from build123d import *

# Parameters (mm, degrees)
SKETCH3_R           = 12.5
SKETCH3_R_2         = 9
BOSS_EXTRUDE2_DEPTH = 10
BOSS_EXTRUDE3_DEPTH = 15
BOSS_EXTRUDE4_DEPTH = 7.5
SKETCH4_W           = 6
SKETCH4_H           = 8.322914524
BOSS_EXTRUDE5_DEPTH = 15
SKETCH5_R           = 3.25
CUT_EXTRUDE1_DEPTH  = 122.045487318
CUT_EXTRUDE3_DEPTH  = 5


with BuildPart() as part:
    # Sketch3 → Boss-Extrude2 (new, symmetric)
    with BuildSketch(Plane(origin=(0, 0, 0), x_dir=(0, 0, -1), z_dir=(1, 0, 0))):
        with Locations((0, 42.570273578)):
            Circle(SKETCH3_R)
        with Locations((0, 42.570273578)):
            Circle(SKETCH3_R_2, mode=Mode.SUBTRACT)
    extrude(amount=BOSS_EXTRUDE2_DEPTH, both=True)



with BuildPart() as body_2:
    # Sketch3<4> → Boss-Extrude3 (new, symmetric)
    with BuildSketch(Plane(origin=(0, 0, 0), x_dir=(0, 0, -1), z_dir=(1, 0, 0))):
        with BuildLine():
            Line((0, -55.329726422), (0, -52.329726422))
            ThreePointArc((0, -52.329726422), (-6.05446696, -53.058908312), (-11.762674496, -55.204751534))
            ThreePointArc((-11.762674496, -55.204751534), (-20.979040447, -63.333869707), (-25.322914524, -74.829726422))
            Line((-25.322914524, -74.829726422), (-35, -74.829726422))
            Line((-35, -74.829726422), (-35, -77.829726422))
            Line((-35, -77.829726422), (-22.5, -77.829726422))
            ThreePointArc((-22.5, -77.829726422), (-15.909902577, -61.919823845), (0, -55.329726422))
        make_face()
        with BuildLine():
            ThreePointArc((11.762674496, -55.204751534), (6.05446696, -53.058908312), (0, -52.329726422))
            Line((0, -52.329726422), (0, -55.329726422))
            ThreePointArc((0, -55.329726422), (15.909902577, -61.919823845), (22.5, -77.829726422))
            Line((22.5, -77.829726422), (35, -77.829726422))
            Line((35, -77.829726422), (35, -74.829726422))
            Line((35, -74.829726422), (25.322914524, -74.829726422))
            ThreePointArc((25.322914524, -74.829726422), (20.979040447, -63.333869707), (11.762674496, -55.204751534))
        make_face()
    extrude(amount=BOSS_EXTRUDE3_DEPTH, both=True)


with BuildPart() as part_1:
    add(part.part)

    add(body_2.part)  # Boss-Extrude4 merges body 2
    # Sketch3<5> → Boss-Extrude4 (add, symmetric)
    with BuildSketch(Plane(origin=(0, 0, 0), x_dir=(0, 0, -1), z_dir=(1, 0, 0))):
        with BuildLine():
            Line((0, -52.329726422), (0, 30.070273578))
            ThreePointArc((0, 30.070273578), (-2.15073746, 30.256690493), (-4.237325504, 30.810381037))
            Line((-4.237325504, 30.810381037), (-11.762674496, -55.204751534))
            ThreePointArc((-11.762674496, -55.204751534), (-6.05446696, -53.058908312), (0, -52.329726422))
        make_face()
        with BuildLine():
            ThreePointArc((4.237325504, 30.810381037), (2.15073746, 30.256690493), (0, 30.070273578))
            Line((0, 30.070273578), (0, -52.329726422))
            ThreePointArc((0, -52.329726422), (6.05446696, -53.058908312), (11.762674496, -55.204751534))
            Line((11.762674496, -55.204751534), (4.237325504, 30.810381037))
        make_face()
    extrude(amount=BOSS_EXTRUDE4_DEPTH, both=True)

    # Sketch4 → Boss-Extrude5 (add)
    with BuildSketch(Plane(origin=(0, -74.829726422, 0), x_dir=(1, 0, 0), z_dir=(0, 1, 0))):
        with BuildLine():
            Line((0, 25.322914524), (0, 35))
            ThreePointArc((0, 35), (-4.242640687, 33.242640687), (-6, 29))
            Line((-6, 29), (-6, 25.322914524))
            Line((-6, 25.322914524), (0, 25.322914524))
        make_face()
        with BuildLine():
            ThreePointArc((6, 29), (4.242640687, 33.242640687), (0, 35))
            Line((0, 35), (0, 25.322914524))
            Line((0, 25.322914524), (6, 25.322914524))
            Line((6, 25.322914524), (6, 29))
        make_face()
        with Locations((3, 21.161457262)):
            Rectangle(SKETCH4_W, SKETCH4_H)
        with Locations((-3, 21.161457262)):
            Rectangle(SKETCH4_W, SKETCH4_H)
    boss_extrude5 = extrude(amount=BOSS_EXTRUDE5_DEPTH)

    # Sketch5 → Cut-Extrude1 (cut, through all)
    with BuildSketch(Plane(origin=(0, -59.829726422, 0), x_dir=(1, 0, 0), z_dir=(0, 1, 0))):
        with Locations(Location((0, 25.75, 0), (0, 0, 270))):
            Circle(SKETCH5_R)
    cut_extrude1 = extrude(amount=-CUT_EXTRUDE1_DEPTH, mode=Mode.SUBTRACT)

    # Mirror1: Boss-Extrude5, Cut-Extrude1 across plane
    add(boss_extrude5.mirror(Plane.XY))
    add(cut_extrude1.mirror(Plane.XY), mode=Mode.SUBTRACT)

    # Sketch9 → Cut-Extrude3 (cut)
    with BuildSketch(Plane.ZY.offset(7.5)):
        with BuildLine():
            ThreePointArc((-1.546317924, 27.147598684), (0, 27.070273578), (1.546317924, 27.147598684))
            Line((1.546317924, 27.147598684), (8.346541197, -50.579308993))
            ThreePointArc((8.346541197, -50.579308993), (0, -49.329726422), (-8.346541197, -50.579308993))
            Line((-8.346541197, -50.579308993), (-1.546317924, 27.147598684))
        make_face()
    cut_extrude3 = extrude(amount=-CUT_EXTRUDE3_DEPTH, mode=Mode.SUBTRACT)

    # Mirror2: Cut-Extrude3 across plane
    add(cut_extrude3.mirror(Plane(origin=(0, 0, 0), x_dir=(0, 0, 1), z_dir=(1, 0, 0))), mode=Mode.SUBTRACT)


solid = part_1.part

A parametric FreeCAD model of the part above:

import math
import FreeCAD as App
import Part
import Sketcher
from FreeCAD import Vector
Q = App.Units.Quantity

doc = App.newDocument("Part")
body = doc.addObject("PartDesign::Body", "Body")

sketch1 = body.newObject("Sketcher::SketchObject", "Sketch")
sketch1.AttachmentSupport = (doc.getObject("YZ_Plane"), [""])
sketch1.MapMode = "FlatFace"
sketch1.addGeometry(Part.Circle(Vector(43, 0, 0), Vector(0, 0, 1), 12), False)
sketch1.addGeometry(Part.Circle(Vector(43, 0, 0), Vector(0, 0, 1), 9), False)
sketch1.addConstraint(Sketcher.Constraint("Coincident", 1, 3, 0, 3))
sketch1.addConstraint(Sketcher.Constraint("PointOnObject", 0, 3, -1))
sketch1.addConstraint(Sketcher.Constraint("Diameter", 0, Q("25 mm")))
sketch1.addConstraint(Sketcher.Constraint("Diameter", 1, Q("18 mm")))
sketch1.addConstraint(Sketcher.Constraint("DistanceX", -1, 1, 0, 3, Q("42.570274 mm")))
pad1 = body.newObject("PartDesign::Pad", "Pad")
pad1.Profile = sketch1
pad1.Length = 20
pad1.Midplane = True
body2 = doc.addObject("PartDesign::Body", "Body001")

sketch2 = body2.newObject("Sketcher::SketchObject", "Sketch001")
sketch2.AttachmentSupport = (doc.getObject("YZ_Plane001"), [""])
sketch2.MapMode = "FlatFace"
sketch2.addGeometry(Part.ArcOfCircle(Part.Circle(Vector(-77.8, 0, 0), Vector(0, 0, 1), 25.5), math.radians(0), math.radians(27)), False)
sketch2.addGeometry(Part.ArcOfCircle(Part.Circle(Vector(-77.8, 0, 0), Vector(0, 0, 1), 25.5), math.radians(27), math.radians(83)), False)
sketch2.addGeometry(Part.LineSegment(Vector(-74.8, 25.3, 0), Vector(-74.8, 35, 0)), False)
sketch2.addGeometry(Part.LineSegment(Vector(-74.8, 35, 0), Vector(-77.8, 35, 0)), False)
sketch2.addGeometry(Part.LineSegment(Vector(-77.8, 35, 0), Vector(-77.8, 22.5, 0)), False)
sketch2.addGeometry(Part.ArcOfCircle(Part.Circle(Vector(-77.8, 0, 0), Vector(0, 0, 1), 22.5), math.radians(0), math.radians(90)), False)
sketch2.addGeometry(Part.ArcOfCircle(Part.Circle(Vector(-77.8, 0, 0), Vector(0, 0, 1), 22.5), math.radians(-90), math.radians(0)), False)
sketch2.addGeometry(Part.LineSegment(Vector(-77.8, -22.5, 0), Vector(-77.8, -35, 0)), False)
sketch2.addGeometry(Part.LineSegment(Vector(-77.8, -35, 0), Vector(-74.8, -35, 0)), False)
sketch2.addGeometry(Part.LineSegment(Vector(-74.8, -35, 0), Vector(-74.8, -25.3, 0)), False)
sketch2.addGeometry(Part.ArcOfCircle(Part.Circle(Vector(-77.8, 0, 0), Vector(0, 0, 1), 25.5), math.radians(-83), math.radians(-27)), False)
sketch2.addGeometry(Part.ArcOfCircle(Part.Circle(Vector(-77.8, 0, 0), Vector(0, 0, 1), 25.5), math.radians(-27), math.radians(0)), False)
sketch2.addConstraint(Sketcher.Constraint("Tangent", 0, 2, 1, 1))
sketch2.addConstraint(Sketcher.Constraint("Coincident", 1, 2, 2, 1))
sketch2.addConstraint(Sketcher.Constraint("Coincident", 2, 2, 3, 1))
sketch2.addConstraint(Sketcher.Constraint("Coincident", 3, 2, 4, 1))
sketch2.addConstraint(Sketcher.Constraint("Coincident", 4, 2, 5, 2))
sketch2.addConstraint(Sketcher.Constraint("Tangent", 5, 1, 6, 2))
sketch2.addConstraint(Sketcher.Constraint("Coincident", 6, 1, 7, 1))
sketch2.addConstraint(Sketcher.Constraint("Coincident", 7, 2, 8, 1))
sketch2.addConstraint(Sketcher.Constraint("Coincident", 8, 2, 9, 1))
sketch2.addConstraint(Sketcher.Constraint("Coincident", 9, 2, 10, 1))
sketch2.addConstraint(Sketcher.Constraint("Tangent", 10, 2, 11, 1))
sketch2.addConstraint(Sketcher.Constraint("Tangent", 11, 2, 0, 1))
sketch2.addConstraint(Sketcher.Constraint("Vertical", 2))
sketch2.addConstraint(Sketcher.Constraint("Horizontal", 3))
sketch2.addConstraint(Sketcher.Constraint("Vertical", 4))
sketch2.addConstraint(Sketcher.Constraint("Vertical", 7))
sketch2.addConstraint(Sketcher.Constraint("Horizontal", 8))
sketch2.addConstraint(Sketcher.Constraint("Vertical", 9))
sketch2.addConstraint(Sketcher.Constraint("Coincident", 5, 3, 0, 3))
sketch2.addConstraint(Sketcher.Constraint("Coincident", 10, 3, 0, 3))
sketch2.addConstraint(Sketcher.Constraint("Equal", 0, 1))
sketch2.addConstraint(Sketcher.Constraint("Equal", 5, 6))
sketch2.addConstraint(Sketcher.Constraint("Symmetric", 4, 2, 6, 1, -1))
sketch2.addConstraint(Sketcher.Constraint("Symmetric", 2, 2, 8, 2, -1))
sketch2.addConstraint(Sketcher.Constraint("PointOnObject", 5, 1, -1))
sketch2.addConstraint(Sketcher.Constraint("PointOnObject", 11, 2, -1))
sketch2.addConstraint(Sketcher.Constraint("Vertical", 11, 3, 3, 2))
sketch2.addConstraint(Sketcher.Constraint("Vertical", 0, 2, 10, 2))
sketch2.addConstraint(Sketcher.Constraint("Radius", 0, Q("25.5 mm")))
sketch2.addConstraint(Sketcher.Constraint("Radius", 5, Q("22.5 mm")))
sketch2.addConstraint(Sketcher.Constraint("DistanceX", 3, 2, 3, 1, Q("3 mm")))
sketch2.addConstraint(Sketcher.Constraint("DistanceY", 4, 2, 4, 1, Q("12.5 mm")))
sketch2.addConstraint(Sketcher.Constraint("DistanceX", 0, 2, -1, 1, Q("55.204752 mm")))
sketch2.addConstraint(Sketcher.Constraint("DistanceY", 0, 2, 1, 2, Q("13.56024 mm")))
pad2 = body2.newObject("PartDesign::Pad", "Pad001")
pad2.Profile = sketch2
pad2.Length = 30
pad2.Midplane = True
body.AllowCompound = True
doc.recompute()

boolean = body.newObject("PartDesign::Boolean", "Boolean")
boolean.Type = "Fuse"
boolean.addObjects([body2])

sketch3 = body.newObject("Sketcher::SketchObject", "Sketch002")
sketch3.AttachmentSupport = (doc.getObject("YZ_Plane"), [""])
sketch3.MapMode = "FlatFace"
sketch3.addGeometry(Part.ArcOfCircle(Part.Circle(Vector(42.6, 0, 0), Vector(0, 0, 1), 12.5), math.radians(160.18), math.radians(180)), False)
sketch3.addGeometry(Part.LineSegment(Vector(30.8, 4.2, 0), Vector(-55.2, 11.8, 0)), False)
sketch3.addGeometry(Part.ArcOfCircle(Part.Circle(Vector(-77.8, 0, 0), Vector(0, 0, 1), 25.5), math.radians(0), math.radians(27)), False)
sketch3.addGeometry(Part.ArcOfCircle(Part.Circle(Vector(-77.8, 0, 0), Vector(0, 0, 1), 25.5), math.radians(-27), math.radians(0)), False)
sketch3.addGeometry(Part.LineSegment(Vector(-55.2, -11.8, 0), Vector(30.8, -4.2, 0)), False)
sketch3.addGeometry(Part.ArcOfCircle(Part.Circle(Vector(42.6, 0, 0), Vector(0, 0, 1), 12.5), math.radians(180), math.radians(199.82)), False)
sketch3.addConstraint(Sketcher.Constraint("Coincident", 0, 1, 1, 1))
sketch3.addConstraint(Sketcher.Constraint("Coincident", 1, 2, 2, 2))
sketch3.addConstraint(Sketcher.Constraint("Tangent", 2, 1, 3, 2))
sketch3.addConstraint(Sketcher.Constraint("Coincident", 3, 1, 4, 1))
sketch3.addConstraint(Sketcher.Constraint("Coincident", 4, 2, 5, 2))
sketch3.addConstraint(Sketcher.Constraint("Tangent", 5, 1, 0, 2))
sketch3.addConstraint(Sketcher.Constraint("Equal", 2, 3))
sketch3.addConstraint(Sketcher.Constraint("Equal", 0, 5))
sketch3.addConstraint(Sketcher.Constraint("Symmetric", 1, 2, 3, 1, -1))
sketch3.addConstraint(Sketcher.Constraint("Symmetric", 0, 1, 4, 2, -1))
sketch3.addConstraint(Sketcher.Constraint("PointOnObject", 2, 1, -1))
sketch3.addConstraint(Sketcher.Constraint("PointOnObject", 5, 1, -1))
sketch3.addConstraint(Sketcher.Constraint("Radius", 0, Q("12.5 mm")))
sketch3.addConstraint(Sketcher.Constraint("Radius", 2, Q("25.5 mm")))
sketch3.addConstraint(Sketcher.Constraint("Angle", 1, Q("175 deg")))
sketch3.addConstraint(Sketcher.Constraint("DistanceY", 3, 1, 0, 1, Q("16 mm")))
sketch3.addConstraint(Sketcher.Constraint("DistanceX", 2, 3, 0, 3, Q("120.4 mm")))
sketch3.addConstraint(Sketcher.Constraint("DistanceX", -1, 1, 0, 1, Q("30.810381 mm")))
pad3 = body.newObject("PartDesign::Pad", "Pad002")
pad3.Profile = sketch3
pad3.Length = 15
pad3.Midplane = True

sketch4 = body.newObject("Sketcher::SketchObject", "Sketch003")
sketch4.AttachmentSupport = (doc.getObject("XZ_Plane"), [""])
sketch4.MapMode = "FlatFace"
sketch4.AttachmentOffset = App.Placement(Vector(0, 0, 74.829726), App.Rotation())
sketch4.addGeometry(Part.ArcOfCircle(Part.Circle(Vector(0, -29, 0), Vector(0, 0, 1), 6), math.radians(180), math.radians(270)), False)
sketch4.addGeometry(Part.LineSegment(Vector(-6, -29, 0), Vector(-6, -17, 0)), False)
sketch4.addGeometry(Part.LineSegment(Vector(-6, -17, 0), Vector(6, -17, 0)), False)
sketch4.addGeometry(Part.LineSegment(Vector(6, -17, 0), Vector(6, -29, 0)), False)
sketch4.addGeometry(Part.ArcOfCircle(Part.Circle(Vector(0, -29, 0), Vector(0, 0, 1), 6), math.radians(-90), math.radians(0)), False)
sketch4.addConstraint(Sketcher.Constraint("Tangent", 0, 1, 1, 1))
sketch4.addConstraint(Sketcher.Constraint("Coincident", 1, 2, 2, 1))
sketch4.addConstraint(Sketcher.Constraint("Coincident", 2, 2, 3, 1))
sketch4.addConstraint(Sketcher.Constraint("Tangent", 3, 2, 4, 2))
sketch4.addConstraint(Sketcher.Constraint("Tangent", 4, 1, 0, 2))
sketch4.addConstraint(Sketcher.Constraint("Vertical", 1))
sketch4.addConstraint(Sketcher.Constraint("Horizontal", 2))
sketch4.addConstraint(Sketcher.Constraint("Vertical", 3))
sketch4.addConstraint(Sketcher.Constraint("Equal", 0, 4))
sketch4.addConstraint(Sketcher.Constraint("PointOnObject", 0, 3, -2))
sketch4.addConstraint(Sketcher.Constraint("PointOnObject", 4, 1, -2))
sketch4.addConstraint(Sketcher.Constraint("Equal", 2, 1))
sketch4.addConstraint(Sketcher.Constraint("Radius", 0, Q("6 mm")))
sketch4.addConstraint(Sketcher.Constraint("DistanceY", 0, 3, -1, 1, Q("29 mm")))
pad4 = body.newObject("PartDesign::Pad", "Pad003")
pad4.Profile = sketch4
pad4.Length = 15
pad4.Reversed = True

sketch5 = body.newObject("Sketcher::SketchObject", "Sketch004")
sketch5.AttachmentSupport = (doc.getObject("XZ_Plane"), [""])
sketch5.MapMode = "FlatFace"
sketch5.AttachmentOffset = App.Placement(Vector(0, 0, 59.829726), App.Rotation())
sketch5.addGeometry(Part.Circle(Vector(0, -25.8, 0), Vector(0, 0, 1), 3.2), False)
sketch5.addConstraint(Sketcher.Constraint("PointOnObject", 0, 3, -2))
sketch5.addConstraint(Sketcher.Constraint("Diameter", 0, Q("6.5 mm")))
sketch5.addConstraint(Sketcher.Constraint("DistanceY", 0, 3, -1, 1, Q("25.75 mm")))
pocket1 = body.newObject("PartDesign::Pocket", "Pocket")
pocket1.Profile = sketch5
pocket1.Type = "ThroughAll"
pocket1.Reversed = True
doc.recompute()

mirrored = body.newObject("PartDesign::Mirrored", "Mirrored")
mirrored.Originals = [pad4, pocket1]
mirrored.MirrorPlane = (doc.getObject("XY_Plane"), [""])
body.Tip = mirrored

sketch6 = body.newObject("Sketcher::SketchObject", "Sketch005")
sketch6.AttachmentSupport = (doc.getObject("YZ_Plane"), [""])
sketch6.MapMode = "FlatFace"
sketch6.AttachmentOffset = App.Placement(Vector(0, 0, -7.5), App.Rotation())
sketch6.addGeometry(Part.ArcOfCircle(Part.Circle(Vector(42.6, 0, 0), Vector(0, 0, 1), 15.5), math.radians(174.27), math.radians(185.73)), False)
sketch6.addGeometry(Part.LineSegment(Vector(27.1, -1.5, 0), Vector(-50.6, -8.3, 0)), False)
sketch6.addGeometry(Part.ArcOfCircle(Part.Circle(Vector(-77.8, 0, 0), Vector(0, 0, 1), 28.5), math.radians(-17), math.radians(17)), False)
sketch6.addGeometry(Part.LineSegment(Vector(-50.6, 8.3, 0), Vector(27.1, 1.5, 0)), False)
sketch6.addConstraint(Sketcher.Constraint("Coincident", 0, 2, 1, 1))
sketch6.addConstraint(Sketcher.Constraint("Coincident", 1, 2, 2, 1))
sketch6.addConstraint(Sketcher.Constraint("Coincident", 2, 2, 3, 1))
sketch6.addConstraint(Sketcher.Constraint("Coincident", 3, 2, 0, 1))
sketch6.addConstraint(Sketcher.Constraint("Symmetric", 1, 2, 2, 2, -1))
sketch6.addConstraint(Sketcher.Constraint("Symmetric", 0, 2, 3, 2, -1))
sketch6.addConstraint(Sketcher.Constraint("Radius", 0, Q("15.5 mm")))
sketch6.addConstraint(Sketcher.Constraint("Radius", 2, Q("28.5 mm")))
sketch6.addConstraint(Sketcher.Constraint("Angle", 1, Q("-175 deg")))
sketch6.addConstraint(Sketcher.Constraint("DistanceX", 2, 3, 0, 3, Q("120.4 mm")))
sketch6.addConstraint(Sketcher.Constraint("DistanceX", -1, 1, 0, 2, Q("27.147599 mm")))
sketch6.addConstraint(Sketcher.Constraint("Distance", 1, Q("78.023812 mm")))
pocket2 = body.newObject("PartDesign::Pocket", "Pocket001")
pocket2.Profile = sketch6
pocket2.Length = 5
pocket2.Reversed = True
doc.recompute()

mirrored2 = body.newObject("PartDesign::Mirrored", "Mirrored001")
mirrored2.Originals = [pocket2]
mirrored2.MirrorPlane = (doc.getObject("YZ_Plane"), [""])
body.Tip = mirrored2

doc.recompute()
